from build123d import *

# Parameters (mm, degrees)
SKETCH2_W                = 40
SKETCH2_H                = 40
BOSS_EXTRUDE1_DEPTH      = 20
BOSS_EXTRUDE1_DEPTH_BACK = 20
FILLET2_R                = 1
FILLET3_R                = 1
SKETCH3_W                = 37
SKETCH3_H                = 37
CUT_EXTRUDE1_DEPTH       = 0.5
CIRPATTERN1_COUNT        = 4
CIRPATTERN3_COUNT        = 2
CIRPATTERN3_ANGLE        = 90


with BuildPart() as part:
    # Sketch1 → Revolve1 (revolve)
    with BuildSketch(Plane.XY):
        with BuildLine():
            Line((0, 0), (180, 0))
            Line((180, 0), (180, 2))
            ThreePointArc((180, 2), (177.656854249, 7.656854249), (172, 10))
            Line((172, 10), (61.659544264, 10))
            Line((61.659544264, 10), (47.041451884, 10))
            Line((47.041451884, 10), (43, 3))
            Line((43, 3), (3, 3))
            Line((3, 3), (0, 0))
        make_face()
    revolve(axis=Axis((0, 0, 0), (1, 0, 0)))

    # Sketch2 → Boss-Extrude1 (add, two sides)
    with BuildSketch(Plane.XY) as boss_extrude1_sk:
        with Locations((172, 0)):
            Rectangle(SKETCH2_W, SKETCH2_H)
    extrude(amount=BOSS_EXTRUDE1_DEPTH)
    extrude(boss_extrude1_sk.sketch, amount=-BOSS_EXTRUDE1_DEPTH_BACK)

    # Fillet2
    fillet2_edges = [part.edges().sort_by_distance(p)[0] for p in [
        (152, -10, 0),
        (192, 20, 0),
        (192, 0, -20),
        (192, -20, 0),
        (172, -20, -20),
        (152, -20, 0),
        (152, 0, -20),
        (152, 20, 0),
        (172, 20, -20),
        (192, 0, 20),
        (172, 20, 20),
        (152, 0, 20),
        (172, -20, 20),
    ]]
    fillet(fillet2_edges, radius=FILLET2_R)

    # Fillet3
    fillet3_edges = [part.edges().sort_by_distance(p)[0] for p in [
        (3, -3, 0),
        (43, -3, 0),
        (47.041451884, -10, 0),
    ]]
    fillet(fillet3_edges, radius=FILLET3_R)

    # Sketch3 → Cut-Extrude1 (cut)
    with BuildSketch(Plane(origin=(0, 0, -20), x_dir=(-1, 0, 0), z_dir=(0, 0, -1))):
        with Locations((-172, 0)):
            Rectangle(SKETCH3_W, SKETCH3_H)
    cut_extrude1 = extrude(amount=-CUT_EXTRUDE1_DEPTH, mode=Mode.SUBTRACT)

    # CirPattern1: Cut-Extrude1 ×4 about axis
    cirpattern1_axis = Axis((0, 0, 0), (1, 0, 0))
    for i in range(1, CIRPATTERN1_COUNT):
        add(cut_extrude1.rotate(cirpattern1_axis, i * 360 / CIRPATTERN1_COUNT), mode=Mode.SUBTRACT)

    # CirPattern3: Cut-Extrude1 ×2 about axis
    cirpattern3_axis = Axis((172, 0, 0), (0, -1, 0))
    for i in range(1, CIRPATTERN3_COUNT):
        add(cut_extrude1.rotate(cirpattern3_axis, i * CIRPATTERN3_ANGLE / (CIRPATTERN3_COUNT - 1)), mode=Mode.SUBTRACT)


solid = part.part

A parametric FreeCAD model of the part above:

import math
import FreeCAD as App
import Part
import Sketcher
from FreeCAD import Vector
Q = App.Units.Quantity


def edges_at(feature, points):
    """Names of the edges that pass closest to the given points."""
    edges = feature.Shape.Edges
    near = lambda p: min(range(len(edges)), key=lambda i: edges[i].distToShape(Part.Vertex(*p))[0])
    return sorted({f"Edge{near(p) + 1}" for p in points})

doc = App.newDocument("Part")
params = doc.addObject("Spreadsheet::Sheet", "Params")
for row, (alias, value) in enumerate([
    ("sketch1_radius", "8 mm"),
    ("sketch1_width", "180 mm"),
    ("sketch1_width2", "40 mm"),
    ("sketch1_height", "2 mm"),
    ("revolution_angle", "360 deg"),
    ("sketch2_width", "40 mm"),
    ("pad1_length", "20 mm"),
    ("pad1_length2", "20 mm"),
    ("fillet_radius", "1 mm"),
    ("fillet2_radius", "1 mm"),
    ("sketch3_width", "37 mm"),
    ("pocket1_length", "0.5 mm"),
], start=1):
    params.set(f"A{row}", alias)
    params.set(f"B{row}", "=" + value)
    params.setAlias(f"B{row}", alias)

body = doc.addObject("PartDesign::Body", "Body")

# Sketch on XY plane
sketch1 = body.newObject("Sketcher::SketchObject", "Sketch")
sketch1.AttachmentSupport = (doc.getObject("XY_Plane"), [""])
sketch1.MapMode = "FlatFace"
sketch1.addGeometry(Part.LineSegment(Vector(0, 0, 0), Vector(180, 0, 0)), False)
sketch1.addGeometry(Part.LineSegment(Vector(180, 0, 0), Vector(180, 2, 0)), False)
sketch1.addGeometry(Part.ArcOfCircle(Part.Circle(Vector(172, 2, 0), Vector(0, 0, 1), 8), math.radians(0), math.radians(90)), False)
sketch1.addGeometry(Part.LineSegment(Vector(172, 10, 0), Vector(47.041452, 10, 0)), False)
sketch1.addGeometry(Part.LineSegment(Vector(47.041452, 10, 0), Vector(43, 3, 0)), False)
sketch1.addGeometry(Part.LineSegment(Vector(43, 3, 0), Vector(3, 3, 0)), False)
sketch1.addGeometry(Part.LineSegment(Vector(3, 3, 0), Vector(0, 0, 0)), False)
sketch1.addConstraint(Sketcher.Constraint("Coincident", 0, 2, 1, 1))
sketch1.addConstraint(Sketcher.Constraint("Tangent", 1, 2, 2, 1))
sketch1.addConstraint(Sketcher.Constraint("Tangent", 2, 2, 3, 1))
sketch1.addConstraint(Sketcher.Constraint("Coincident", 3, 2, 4, 1))
sketch1.addConstraint(Sketcher.Constraint("Coincident", 4, 2, 5, 1))
sketch1.addConstraint(Sketcher.Constraint("Coincident", 5, 2, 6, 1))
sketch1.addConstraint(Sketcher.Constraint("Coincident", 6, 2, 0, 1))
sketch1.addConstraint(Sketcher.Constraint("Horizontal", 0))
sketch1.addConstraint(Sketcher.Constraint("Vertical", 1))
sketch1.addConstraint(Sketcher.Constraint("Horizontal", 3))
sketch1.addConstraint(Sketcher.Constraint("Horizontal", 5))
sketch1.addConstraint(Sketcher.Constraint("Coincident", 6, 2, -1, 1))
sketch1.addConstraint(Sketcher.Constraint("Radius", 2, Q("8 mm")))
sketch1.addConstraint(Sketcher.Constraint("DistanceX", 0, 1, 0, 2, Q("180 mm")))
sketch1.addConstraint(Sketcher.Constraint("DistanceX", 5, 2, 5, 1, Q("40 mm")))
sketch1.addConstraint(Sketcher.Constraint("DistanceY", 1, 1, 1, 2, Q("2 mm")))
sketch1.addConstraint(Sketcher.Constraint("Angle", 4, Q("-120 deg")))
sketch1.addConstraint(Sketcher.Constraint("Angle", 6, Q("-135 deg")))
sketch1.addConstraint(Sketcher.Constraint("DistanceX", -1, 1, 4, 2, Q("43 mm")))
sketch1.setExpression("Constraints[12]", "Params.sketch1_radius")
sketch1.setExpression("Constraints[13]", "Params.sketch1_width")
sketch1.setExpression("Constraints[14]", "Params.sketch1_width2")
sketch1.setExpression("Constraints[15]", "Params.sketch1_height")
revolution = body.newObject("PartDesign::Revolution", "Revolution")
revolution.Profile = sketch1
revolution.ReferenceAxis = (sketch1, ["H_Axis"])
revolution.setExpression("Angle", "Params.revolution_angle")

# Sketch on XY plane
sketch2 = body.newObject("Sketcher::SketchObject", "Sketch001")
sketch2.AttachmentSupport = (doc.getObject("XY_Plane"), [""])
sketch2.MapMode = "FlatFace"
sketch2.addGeometry(Part.LineSegment(Vector(152, 20, 0), Vector(152, -20, 0)), False)
sketch2.addGeometry(Part.LineSegment(Vector(152, -20, 0), Vector(192, -20, 0)), False)
sketch2.addGeometry(Part.LineSegment(Vector(192, -20, 0), Vector(192, 20, 0)), False)
sketch2.addGeometry(Part.LineSegment(Vector(192, 20, 0), Vector(152, 20, 0)), False)
sketch2.addConstraint(Sketcher.Constraint("Coincident", 0, 2, 1, 1))
sketch2.addConstraint(Sketcher.Constraint("Coincident", 1, 2, 2, 1))
sketch2.addConstraint(Sketcher.Constraint("Coincident", 2, 2, 3, 1))
sketch2.addConstraint(Sketcher.Constraint("Coincident", 3, 2, 0, 1))
sketch2.addConstraint(Sketcher.Constraint("Vertical", 0))
sketch2.addConstraint(Sketcher.Constraint("Horizontal", 1))
sketch2.addConstraint(Sketcher.Constraint("Vertical", 2))
sketch2.addConstraint(Sketcher.Constraint("Horizontal", 3))
sketch2.addConstraint(Sketcher.Constraint("Equal", 3, 0))
sketch2.addConstraint(Sketcher.Constraint("DistanceX", 1, 1, 1, 2, Q("40 mm")))
sketch2.addConstraint(Sketcher.Constraint("DistanceX", -1, 1, 0, 2, Q("152 mm")))
sketch2.addConstraint(Sketcher.Constraint("DistanceY", 0, 2, -1, 1, Q("20 mm")))
sketch2.setExpression("Constraints[9]", "Params.sketch2_width")
pad1 = body.newObject("PartDesign::Pad", "Pad")
pad1.Profile = sketch2
pad1.Type = "TwoLengths"
pad1.setExpression("Length", "Params.pad1_length")
pad1.setExpression("Length2", "Params.pad1_length2")
doc.recompute()

fillet = body.newObject("PartDesign::Fillet", "Fillet")
fillet.Base = (pad1, edges_at(pad1, [
    (152, -10, 0),
    (192, 20, 0),
    (192, 0, -20),
    (192, -20, 0),
    (172, -20, -20),
    (152, -20, 0),
    (152, 0, -20),
    (152, 20, 0),
    (172, 20, -20),
    (192, 0, 20),
    (172, 20, 20),
    (152, 0, 20),
    (172, -20, 20),
]))
fillet.setExpression("Radius", "Params.fillet_radius")
doc.recompute()

fillet2 = body.newObject("PartDesign::Fillet", "Fillet001")
fillet2.Base = (fillet, edges_at(fillet, [(3, -3, 0), (43, -3, 0), (47.041, -10, 0)]))
fillet2.setExpression("Radius", "Params.fillet2_radius")

# Sketch on XY plane
sketch3 = body.newObject("Sketcher::SketchObject", "Sketch002")
sketch3.AttachmentSupport = (doc.getObject("XY_Plane"), [""])
sketch3.MapMode = "FlatFace"
sketch3.AttachmentOffset = App.Placement(Vector(0, 0, -20), App.Rotation())
sketch3.addGeometry(Part.LineSegment(Vector(190.5, 18.5, 0), Vector(190.5, -18.5, 0)), False)
sketch3.addGeometry(Part.LineSegment(Vector(190.5, -18.5, 0), Vector(153.5, -18.5, 0)), False)
sketch3.addGeometry(Part.LineSegment(Vector(153.5, -18.5, 0), Vector(153.5, 18.5, 0)), False)
sketch3.addGeometry(Part.LineSegment(Vector(153.5, 18.5, 0), Vector(190.5, 18.5, 0)), False)
sketch3.addConstraint(Sketcher.Constraint("Coincident", 0, 2, 1, 1))
sketch3.addConstraint(Sketcher.Constraint("Coincident", 1, 2, 2, 1))
sketch3.addConstraint(Sketcher.Constraint("Coincident", 2, 2, 3, 1))
sketch3.addConstraint(Sketcher.Constraint("Coincident", 3, 2, 0, 1))
sketch3.addConstraint(Sketcher.Constraint("Vertical", 0))
sketch3.addConstraint(Sketcher.Constraint("Horizontal", 1))
sketch3.addConstraint(Sketcher.Constraint("Vertical", 2))
sketch3.addConstraint(Sketcher.Constraint("Horizontal", 3))
sketch3.addConstraint(Sketcher.Constraint("Equal", 3, 0))
sketch3.addConstraint(Sketcher.Constraint("DistanceX", 1, 2, 1, 1, Q("37 mm")))
sketch3.addConstraint(Sketcher.Constraint("DistanceX", -1, 1, 0, 2, Q("190.5 mm")))
sketch3.addConstraint(Sketcher.Constraint("DistanceY", 0, 2, -1, 1, Q("18.5 mm")))
sketch3.setExpression("Constraints[9]", "Params.sketch3_width")
pocket1 = body.newObject("PartDesign::Pocket", "Pocket")
pocket1.Profile = sketch3
pocket1.setExpression("Length", "Params.pocket1_length")
pocket1.Reversed = True
doc.recompute()

polarpattern = body.newObject("PartDesign::PolarPattern", "PolarPattern")
polarpattern.Originals = [pocket1]
polarpattern.Axis = (doc.getObject("X_Axis"), [""])
polarpattern.Angle = 360
polarpattern.Occurrences = 4
body.Tip = polarpattern
doc.recompute()

datumline = body.newObject("PartDesign::Line", "DatumLine")
datumline.Placement = App.Placement(Vector(172, 0, 0), App.Rotation(Vector(0, 0, 1), Vector(0, -1, 0)))
polarpattern2 = body.newObject("PartDesign::PolarPattern", "PolarPattern001")
polarpattern2.Originals = [pocket1]
polarpattern2.Axis = (datumline, [""])
polarpattern2.Angle = 90
polarpattern2.Occurrences = 2
body.Tip = polarpattern2

doc.recompute()
